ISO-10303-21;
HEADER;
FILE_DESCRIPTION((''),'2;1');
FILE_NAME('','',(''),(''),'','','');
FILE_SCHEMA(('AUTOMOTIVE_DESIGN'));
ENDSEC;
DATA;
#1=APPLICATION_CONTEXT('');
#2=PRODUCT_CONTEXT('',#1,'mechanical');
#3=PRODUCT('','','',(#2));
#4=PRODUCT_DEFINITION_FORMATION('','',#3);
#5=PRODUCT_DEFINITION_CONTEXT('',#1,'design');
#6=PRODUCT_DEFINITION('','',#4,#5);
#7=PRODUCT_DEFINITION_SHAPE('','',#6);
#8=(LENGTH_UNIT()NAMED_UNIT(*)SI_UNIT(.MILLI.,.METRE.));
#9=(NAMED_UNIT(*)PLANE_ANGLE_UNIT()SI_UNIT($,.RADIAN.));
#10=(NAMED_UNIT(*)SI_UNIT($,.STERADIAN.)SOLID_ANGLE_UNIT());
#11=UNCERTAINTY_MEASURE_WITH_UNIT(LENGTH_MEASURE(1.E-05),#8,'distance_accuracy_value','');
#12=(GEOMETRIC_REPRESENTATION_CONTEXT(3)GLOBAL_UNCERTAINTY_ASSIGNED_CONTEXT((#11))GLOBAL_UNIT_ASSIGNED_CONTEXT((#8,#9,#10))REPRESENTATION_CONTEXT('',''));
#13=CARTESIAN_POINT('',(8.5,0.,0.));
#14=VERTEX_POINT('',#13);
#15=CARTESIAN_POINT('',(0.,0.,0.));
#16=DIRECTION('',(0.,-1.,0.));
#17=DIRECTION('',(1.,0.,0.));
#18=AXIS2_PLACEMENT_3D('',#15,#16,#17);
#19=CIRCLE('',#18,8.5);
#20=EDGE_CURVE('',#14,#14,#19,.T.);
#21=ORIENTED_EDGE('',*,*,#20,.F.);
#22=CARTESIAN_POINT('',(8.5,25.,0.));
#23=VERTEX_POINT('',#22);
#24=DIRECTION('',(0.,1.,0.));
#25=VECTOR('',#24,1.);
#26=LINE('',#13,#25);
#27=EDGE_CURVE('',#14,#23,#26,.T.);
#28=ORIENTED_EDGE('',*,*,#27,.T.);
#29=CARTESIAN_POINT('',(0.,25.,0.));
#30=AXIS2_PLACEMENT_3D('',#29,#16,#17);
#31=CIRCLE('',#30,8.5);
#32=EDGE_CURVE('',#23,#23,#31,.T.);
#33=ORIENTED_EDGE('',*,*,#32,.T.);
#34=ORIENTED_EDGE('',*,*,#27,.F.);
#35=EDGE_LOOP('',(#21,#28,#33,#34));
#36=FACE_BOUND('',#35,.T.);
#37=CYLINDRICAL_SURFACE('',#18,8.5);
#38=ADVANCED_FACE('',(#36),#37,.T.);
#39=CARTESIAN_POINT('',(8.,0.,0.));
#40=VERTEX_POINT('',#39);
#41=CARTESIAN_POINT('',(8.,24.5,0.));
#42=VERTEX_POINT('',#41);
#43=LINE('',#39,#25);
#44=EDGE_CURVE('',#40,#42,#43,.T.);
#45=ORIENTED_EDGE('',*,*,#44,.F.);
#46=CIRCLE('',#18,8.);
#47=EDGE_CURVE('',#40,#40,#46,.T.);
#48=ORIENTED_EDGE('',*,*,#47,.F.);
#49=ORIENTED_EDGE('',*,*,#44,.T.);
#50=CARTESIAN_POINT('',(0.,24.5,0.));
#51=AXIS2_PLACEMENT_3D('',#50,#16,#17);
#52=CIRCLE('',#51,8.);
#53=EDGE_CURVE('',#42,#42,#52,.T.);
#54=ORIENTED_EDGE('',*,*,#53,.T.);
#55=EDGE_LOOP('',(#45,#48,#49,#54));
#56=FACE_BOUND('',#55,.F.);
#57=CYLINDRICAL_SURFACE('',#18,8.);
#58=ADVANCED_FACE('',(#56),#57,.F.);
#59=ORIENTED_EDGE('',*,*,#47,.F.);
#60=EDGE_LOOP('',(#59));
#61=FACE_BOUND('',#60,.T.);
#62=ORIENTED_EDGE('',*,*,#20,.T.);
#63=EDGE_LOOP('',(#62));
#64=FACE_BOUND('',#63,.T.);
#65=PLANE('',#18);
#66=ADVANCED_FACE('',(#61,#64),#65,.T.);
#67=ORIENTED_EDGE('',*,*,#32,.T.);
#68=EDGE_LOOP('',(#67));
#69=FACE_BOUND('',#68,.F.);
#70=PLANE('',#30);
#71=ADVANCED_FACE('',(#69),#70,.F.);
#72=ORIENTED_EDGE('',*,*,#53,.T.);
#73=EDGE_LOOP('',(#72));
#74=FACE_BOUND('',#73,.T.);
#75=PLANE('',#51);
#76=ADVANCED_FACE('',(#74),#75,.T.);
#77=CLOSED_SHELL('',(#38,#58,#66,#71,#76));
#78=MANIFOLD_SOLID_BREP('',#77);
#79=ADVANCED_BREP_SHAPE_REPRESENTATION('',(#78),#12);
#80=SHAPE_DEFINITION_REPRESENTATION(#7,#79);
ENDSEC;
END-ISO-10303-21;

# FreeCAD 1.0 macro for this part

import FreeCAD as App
import Part
import Sketcher
from FreeCAD import Vector


def faces_at(feature, points):
    """Names of the faces that lie closest to the given points."""
    faces = feature.Shape.Faces
    near = lambda p: min(range(len(faces)), key=lambda i: faces[i].distToShape(Part.Vertex(*p))[0])
    return sorted({f"Face{near(p) + 1}" for p in points})

doc = App.newDocument("Part")
body = doc.addObject("PartDesign::Body", "Body")

# Sketch on XZ plane
sketch1 = body.newObject("Sketcher::SketchObject", "Sketch")
sketch1.AttachmentSupport = (doc.getObject("XZ_Plane"), [""])
sketch1.MapMode = "FlatFace"
sketch1.addGeometry(Part.Circle(Vector(0, 0, 0), Vector(0, 0, 1), 8), False)
sketch1.addConstraint([
    Sketcher.Constraint("Coincident", 0, 3, -1, 1),
    Sketcher.Constraint("Diameter", 0, 17.0),
])
pad1 = body.newObject("PartDesign::Pad", "Pad")
pad1.Profile = sketch1
pad1.Length = 25
pad1.Reversed = True
doc.recompute()

thickness = body.newObject("PartDesign::Thickness", "Thickness")
thickness.Base = (pad1, faces_at(pad1, [(0, 0, 0)]))
thickness.Value = 0.5
thickness.Reversed = True
thickness.Join = "Arc"

doc.recompute()
